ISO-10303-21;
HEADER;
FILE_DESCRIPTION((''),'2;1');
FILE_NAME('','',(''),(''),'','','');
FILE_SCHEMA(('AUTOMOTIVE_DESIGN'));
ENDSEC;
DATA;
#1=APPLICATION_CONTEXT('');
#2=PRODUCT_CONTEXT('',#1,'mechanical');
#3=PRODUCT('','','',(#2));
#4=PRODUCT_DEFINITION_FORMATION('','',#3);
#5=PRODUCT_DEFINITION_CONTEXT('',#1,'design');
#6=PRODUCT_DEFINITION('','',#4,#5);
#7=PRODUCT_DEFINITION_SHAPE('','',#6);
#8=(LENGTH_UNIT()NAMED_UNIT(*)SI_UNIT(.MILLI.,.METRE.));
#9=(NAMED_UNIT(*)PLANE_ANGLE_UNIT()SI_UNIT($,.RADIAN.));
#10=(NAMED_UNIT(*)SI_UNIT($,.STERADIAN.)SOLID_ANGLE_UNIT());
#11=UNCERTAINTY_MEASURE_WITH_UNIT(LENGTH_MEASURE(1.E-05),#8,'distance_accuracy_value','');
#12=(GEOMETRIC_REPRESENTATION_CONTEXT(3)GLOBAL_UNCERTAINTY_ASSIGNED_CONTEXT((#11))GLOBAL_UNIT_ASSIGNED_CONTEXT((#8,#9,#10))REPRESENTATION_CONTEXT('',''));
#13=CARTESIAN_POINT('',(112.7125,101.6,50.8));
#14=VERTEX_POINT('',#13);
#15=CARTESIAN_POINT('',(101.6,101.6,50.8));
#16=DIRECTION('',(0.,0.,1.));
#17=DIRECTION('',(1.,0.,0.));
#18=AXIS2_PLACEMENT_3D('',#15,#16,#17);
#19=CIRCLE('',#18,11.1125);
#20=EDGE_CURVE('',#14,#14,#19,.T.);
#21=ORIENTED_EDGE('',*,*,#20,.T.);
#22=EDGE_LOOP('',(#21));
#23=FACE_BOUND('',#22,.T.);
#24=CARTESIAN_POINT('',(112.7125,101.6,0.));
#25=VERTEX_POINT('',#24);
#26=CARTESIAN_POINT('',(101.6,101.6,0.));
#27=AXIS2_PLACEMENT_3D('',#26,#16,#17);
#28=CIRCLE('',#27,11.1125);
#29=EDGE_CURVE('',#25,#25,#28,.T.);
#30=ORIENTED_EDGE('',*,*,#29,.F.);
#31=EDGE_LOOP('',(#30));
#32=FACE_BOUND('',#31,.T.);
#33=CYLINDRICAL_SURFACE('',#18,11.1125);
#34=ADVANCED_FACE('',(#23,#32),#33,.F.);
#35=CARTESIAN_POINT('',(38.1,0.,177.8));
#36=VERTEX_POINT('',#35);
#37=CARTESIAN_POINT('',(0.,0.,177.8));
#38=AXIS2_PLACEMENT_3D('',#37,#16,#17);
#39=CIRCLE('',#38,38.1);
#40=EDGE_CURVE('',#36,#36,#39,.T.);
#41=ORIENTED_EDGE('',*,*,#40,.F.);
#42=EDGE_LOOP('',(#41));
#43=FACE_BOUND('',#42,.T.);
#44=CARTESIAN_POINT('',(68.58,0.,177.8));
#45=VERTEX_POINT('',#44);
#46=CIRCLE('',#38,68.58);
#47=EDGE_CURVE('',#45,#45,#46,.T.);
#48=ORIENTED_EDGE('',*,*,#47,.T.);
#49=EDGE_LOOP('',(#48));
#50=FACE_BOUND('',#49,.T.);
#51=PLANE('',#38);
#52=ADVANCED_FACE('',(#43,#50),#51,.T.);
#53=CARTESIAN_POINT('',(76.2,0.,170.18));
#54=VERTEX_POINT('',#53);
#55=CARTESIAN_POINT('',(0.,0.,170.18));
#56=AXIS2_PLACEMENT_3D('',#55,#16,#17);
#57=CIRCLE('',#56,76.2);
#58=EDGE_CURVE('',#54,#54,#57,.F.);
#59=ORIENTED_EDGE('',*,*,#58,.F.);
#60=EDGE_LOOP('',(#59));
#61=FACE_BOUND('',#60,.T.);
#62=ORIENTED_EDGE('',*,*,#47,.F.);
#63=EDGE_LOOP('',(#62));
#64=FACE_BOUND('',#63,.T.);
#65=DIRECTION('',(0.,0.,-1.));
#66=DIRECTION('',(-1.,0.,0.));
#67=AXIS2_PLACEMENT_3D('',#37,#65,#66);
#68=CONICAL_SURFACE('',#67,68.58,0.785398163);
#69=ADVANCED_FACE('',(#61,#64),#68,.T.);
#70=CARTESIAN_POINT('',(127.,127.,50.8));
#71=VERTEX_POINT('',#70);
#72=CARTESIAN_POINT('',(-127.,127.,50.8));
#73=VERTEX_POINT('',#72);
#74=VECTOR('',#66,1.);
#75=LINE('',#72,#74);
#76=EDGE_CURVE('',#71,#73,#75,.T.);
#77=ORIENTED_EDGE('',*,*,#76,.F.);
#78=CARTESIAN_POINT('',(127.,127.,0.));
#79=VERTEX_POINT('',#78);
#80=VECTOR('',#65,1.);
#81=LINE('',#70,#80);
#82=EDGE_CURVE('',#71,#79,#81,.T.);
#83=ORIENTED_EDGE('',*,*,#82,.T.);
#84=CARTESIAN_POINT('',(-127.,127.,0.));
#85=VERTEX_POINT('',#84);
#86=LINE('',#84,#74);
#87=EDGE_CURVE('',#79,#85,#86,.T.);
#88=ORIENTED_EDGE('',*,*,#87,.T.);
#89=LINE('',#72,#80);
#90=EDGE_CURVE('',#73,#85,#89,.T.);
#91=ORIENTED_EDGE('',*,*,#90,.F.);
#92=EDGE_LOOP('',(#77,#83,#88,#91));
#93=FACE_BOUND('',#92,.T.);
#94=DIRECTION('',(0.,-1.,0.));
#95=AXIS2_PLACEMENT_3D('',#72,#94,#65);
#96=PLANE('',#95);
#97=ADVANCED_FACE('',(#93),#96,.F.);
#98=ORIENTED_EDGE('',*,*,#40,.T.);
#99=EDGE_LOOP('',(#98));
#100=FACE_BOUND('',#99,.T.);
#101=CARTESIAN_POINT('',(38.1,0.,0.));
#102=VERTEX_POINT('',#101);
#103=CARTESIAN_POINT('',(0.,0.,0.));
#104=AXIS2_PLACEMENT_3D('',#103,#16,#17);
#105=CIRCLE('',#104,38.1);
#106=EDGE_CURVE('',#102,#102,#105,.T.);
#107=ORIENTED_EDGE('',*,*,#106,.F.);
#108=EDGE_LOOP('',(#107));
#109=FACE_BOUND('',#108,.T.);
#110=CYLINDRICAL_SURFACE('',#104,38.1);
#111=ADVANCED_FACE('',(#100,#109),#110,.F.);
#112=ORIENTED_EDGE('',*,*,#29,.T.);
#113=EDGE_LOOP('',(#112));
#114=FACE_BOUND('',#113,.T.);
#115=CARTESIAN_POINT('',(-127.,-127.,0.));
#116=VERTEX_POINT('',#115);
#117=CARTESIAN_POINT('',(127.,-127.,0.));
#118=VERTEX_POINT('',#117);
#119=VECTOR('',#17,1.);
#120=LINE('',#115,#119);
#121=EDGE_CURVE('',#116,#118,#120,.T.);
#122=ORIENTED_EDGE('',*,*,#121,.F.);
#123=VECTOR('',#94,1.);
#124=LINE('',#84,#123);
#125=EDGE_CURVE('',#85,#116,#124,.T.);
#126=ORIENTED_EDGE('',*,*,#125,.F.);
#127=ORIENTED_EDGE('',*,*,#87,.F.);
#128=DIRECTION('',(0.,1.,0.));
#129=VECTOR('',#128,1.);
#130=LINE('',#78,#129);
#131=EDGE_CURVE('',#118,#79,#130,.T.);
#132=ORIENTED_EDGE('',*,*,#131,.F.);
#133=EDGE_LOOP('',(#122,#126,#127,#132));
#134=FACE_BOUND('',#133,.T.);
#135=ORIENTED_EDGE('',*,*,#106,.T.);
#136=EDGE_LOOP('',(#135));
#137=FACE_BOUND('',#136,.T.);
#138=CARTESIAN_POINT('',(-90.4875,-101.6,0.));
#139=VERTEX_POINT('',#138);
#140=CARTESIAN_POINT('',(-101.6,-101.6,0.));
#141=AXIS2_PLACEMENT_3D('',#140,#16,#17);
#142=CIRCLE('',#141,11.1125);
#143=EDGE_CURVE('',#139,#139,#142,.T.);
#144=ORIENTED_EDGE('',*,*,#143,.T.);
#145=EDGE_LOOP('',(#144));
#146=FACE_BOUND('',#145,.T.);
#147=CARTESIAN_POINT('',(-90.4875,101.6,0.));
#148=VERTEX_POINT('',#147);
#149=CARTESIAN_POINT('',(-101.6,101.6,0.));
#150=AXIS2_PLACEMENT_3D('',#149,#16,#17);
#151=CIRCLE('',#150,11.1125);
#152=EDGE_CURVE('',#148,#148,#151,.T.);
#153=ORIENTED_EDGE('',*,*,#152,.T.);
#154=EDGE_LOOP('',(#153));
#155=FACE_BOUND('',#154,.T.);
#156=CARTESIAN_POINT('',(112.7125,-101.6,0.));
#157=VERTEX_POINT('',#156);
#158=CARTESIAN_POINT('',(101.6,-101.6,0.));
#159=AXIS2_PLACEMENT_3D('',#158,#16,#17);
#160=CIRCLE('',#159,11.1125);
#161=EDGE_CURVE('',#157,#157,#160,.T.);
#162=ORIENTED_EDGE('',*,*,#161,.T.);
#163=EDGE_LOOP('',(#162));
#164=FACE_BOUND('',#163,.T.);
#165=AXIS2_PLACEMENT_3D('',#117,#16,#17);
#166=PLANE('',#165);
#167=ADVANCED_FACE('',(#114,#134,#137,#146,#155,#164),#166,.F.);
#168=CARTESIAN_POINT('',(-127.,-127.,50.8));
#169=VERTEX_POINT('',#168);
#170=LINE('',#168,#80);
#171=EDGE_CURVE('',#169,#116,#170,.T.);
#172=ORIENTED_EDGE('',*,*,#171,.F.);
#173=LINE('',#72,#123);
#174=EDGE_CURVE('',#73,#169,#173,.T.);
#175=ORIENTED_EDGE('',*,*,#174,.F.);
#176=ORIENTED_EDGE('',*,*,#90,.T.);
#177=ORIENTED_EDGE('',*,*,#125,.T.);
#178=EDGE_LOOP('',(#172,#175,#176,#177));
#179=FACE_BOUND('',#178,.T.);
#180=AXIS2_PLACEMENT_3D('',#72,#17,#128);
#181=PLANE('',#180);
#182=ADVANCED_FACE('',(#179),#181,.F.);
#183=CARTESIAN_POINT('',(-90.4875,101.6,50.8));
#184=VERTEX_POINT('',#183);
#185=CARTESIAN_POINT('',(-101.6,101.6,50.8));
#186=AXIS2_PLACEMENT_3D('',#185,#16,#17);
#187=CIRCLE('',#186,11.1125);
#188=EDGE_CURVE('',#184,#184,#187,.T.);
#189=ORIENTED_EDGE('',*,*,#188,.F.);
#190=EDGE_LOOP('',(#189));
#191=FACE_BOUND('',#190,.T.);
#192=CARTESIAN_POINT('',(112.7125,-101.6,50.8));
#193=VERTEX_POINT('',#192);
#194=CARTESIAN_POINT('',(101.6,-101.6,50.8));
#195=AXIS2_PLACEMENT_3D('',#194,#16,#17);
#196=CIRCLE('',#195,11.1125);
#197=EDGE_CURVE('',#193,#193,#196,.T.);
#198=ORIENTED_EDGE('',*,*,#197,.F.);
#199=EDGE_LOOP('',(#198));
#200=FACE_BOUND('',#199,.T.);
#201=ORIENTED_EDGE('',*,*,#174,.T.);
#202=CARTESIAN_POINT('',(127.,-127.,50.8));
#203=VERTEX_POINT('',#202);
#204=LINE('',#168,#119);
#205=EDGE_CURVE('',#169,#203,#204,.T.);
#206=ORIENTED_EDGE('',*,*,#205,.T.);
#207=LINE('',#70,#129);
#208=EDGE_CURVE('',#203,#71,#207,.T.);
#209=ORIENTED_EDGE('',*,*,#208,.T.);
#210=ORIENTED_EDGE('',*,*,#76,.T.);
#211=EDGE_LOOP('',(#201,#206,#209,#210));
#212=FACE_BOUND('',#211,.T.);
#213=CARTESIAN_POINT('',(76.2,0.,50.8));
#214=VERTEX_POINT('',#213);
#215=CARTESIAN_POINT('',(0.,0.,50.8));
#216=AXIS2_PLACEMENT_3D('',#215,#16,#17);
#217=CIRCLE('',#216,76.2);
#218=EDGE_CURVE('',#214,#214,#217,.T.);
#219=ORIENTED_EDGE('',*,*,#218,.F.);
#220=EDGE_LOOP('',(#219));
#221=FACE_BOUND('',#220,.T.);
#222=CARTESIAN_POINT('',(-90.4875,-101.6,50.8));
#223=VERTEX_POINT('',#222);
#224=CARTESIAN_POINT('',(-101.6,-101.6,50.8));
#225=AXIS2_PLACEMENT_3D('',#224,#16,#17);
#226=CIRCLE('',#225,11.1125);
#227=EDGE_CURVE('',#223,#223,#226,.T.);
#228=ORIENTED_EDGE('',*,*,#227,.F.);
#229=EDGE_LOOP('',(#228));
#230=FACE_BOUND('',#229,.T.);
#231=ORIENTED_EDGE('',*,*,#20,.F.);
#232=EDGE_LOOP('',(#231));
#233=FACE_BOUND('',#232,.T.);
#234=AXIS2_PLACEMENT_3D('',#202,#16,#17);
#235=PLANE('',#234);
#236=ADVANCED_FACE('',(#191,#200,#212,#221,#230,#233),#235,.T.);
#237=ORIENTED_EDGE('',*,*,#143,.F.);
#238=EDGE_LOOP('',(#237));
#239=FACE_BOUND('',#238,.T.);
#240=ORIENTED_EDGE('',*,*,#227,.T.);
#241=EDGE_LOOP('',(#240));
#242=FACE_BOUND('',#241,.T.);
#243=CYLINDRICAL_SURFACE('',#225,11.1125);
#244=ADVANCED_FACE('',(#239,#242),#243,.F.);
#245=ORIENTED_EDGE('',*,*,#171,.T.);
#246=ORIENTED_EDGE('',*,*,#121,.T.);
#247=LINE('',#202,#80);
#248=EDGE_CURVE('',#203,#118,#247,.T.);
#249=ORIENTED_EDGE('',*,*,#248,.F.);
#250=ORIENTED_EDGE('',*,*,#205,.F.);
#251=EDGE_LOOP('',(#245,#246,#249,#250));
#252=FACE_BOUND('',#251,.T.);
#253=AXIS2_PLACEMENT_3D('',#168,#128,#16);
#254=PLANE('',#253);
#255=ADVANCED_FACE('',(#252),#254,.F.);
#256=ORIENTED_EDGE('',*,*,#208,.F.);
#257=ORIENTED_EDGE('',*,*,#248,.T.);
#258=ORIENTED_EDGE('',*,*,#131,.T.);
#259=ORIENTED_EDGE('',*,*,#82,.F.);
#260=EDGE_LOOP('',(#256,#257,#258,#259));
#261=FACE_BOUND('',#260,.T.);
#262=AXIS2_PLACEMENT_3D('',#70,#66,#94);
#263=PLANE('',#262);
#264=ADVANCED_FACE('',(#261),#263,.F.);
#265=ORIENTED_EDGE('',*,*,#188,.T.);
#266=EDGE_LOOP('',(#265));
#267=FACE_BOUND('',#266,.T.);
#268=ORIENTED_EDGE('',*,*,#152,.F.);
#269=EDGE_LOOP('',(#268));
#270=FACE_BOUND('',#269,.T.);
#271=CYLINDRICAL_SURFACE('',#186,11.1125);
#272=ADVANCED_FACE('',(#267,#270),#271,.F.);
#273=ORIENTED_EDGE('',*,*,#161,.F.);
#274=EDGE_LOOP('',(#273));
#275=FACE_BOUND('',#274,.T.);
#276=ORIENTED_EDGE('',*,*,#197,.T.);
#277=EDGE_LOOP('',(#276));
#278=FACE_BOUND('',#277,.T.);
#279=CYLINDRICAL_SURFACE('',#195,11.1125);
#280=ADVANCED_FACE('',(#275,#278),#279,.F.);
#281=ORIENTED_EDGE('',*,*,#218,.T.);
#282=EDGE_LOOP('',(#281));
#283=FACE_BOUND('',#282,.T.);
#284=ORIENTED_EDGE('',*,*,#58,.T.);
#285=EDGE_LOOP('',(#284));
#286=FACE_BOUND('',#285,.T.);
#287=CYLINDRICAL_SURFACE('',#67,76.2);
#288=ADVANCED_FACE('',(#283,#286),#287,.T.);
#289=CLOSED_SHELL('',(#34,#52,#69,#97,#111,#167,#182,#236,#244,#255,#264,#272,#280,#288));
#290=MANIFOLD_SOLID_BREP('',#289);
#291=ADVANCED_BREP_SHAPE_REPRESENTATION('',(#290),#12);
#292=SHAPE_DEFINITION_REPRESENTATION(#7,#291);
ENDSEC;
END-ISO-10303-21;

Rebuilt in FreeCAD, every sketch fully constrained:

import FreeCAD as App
import Part
import Sketcher
Q = App.Units.Quantity


def edges_at(feature, points):
    """Names of the edges that pass closest to the given points."""
    edges = feature.Shape.Edges
    near = lambda p: min(range(len(edges)), key=lambda i: edges[i].distToShape(Part.Vertex(*p))[0])
    return sorted({f"Edge{near(p) + 1}" for p in points})

doc = App.newDocument("Part")
params = doc.addObject("Spreadsheet::Sheet", "Params")
for row, (alias, value) in enumerate([
    ("sketch1_width", "10 in"),
    ("pad1_length", "2 in"),
    ("sketch2_diameter", "6 in"),
    ("pad2_length", "5 in"),
    ("chamfer_size", "0.3 in"),
    ("sketch3_diameter", "3 in"),
    ("sketch4_diameter", "0.875 in"),
    ("hole_diameter", "0.875 in"),
], start=1):
    params.set(f"A{row}", alias)
    params.set(f"B{row}", "=" + value)
    params.setAlias(f"B{row}", alias)

body = doc.addObject("PartDesign::Body", "Body")

# Sketch on XY plane
sketch1 = body.newObject("Sketcher::SketchObject", "Sketch")
sketch1.AttachmentSupport = (doc.getObject("XY_Plane"), [""])
sketch1.MapMode = "FlatFace"
sketch1.addGeometry([
    Part.LineSegment(App.Vector(-127, 127, 0), App.Vector(-127, -127, 0)),
    Part.LineSegment(App.Vector(-127, -127, 0), App.Vector(127, -127, 0)),
    Part.LineSegment(App.Vector(127, -127, 0), App.Vector(127, 127, 0)),
    Part.LineSegment(App.Vector(127, 127, 0), App.Vector(-127, 127, 0)),
], False)
sketch1.addConstraint([
    Sketcher.Constraint("Coincident", 0, 2, 1, 1),
    Sketcher.Constraint("Coincident", 1, 2, 2, 1),
    Sketcher.Constraint("Coincident", 2, 2, 3, 1),
    Sketcher.Constraint("Coincident", 3, 2, 0, 1),
    Sketcher.Constraint("Vertical", 0),
    Sketcher.Constraint("Horizontal", 1),
    Sketcher.Constraint("Vertical", 2),
    Sketcher.Constraint("Horizontal", 3),
    Sketcher.Constraint("Symmetric", 0, 2, 2, 2, -1, 1),
    Sketcher.Constraint("Equal", 3, 0),
    Sketcher.Constraint("DistanceX", 1, 1, 1, 2, Q("10 in")),
])
sketch1.setExpression("Constraints[10]", "Params.sketch1_width")
pad1 = body.newObject("PartDesign::Pad", "Pad")
pad1.Profile = sketch1
pad1.setExpression("Length", "Params.pad1_length")

# Sketch on XY plane
sketch2 = body.newObject("Sketcher::SketchObject", "Sketch001")
sketch2.AttachmentSupport = (doc.getObject("XY_Plane"), [""])
sketch2.MapMode = "FlatFace"
sketch2.AttachmentOffset = App.Placement(App.Vector(0, 0, 2 * 25.4), App.Rotation())
sketch2.addGeometry(Part.Circle(App.Vector(0, 0, 0), App.Vector(0, 0, 1), 76.2), False)
sketch2.addConstraint([
    Sketcher.Constraint("Coincident", 0, 3, -1, 1),
    Sketcher.Constraint("Diameter", 0, Q("6 in")),
])
sketch2.setExpression("Constraints[1]", "Params.sketch2_diameter")
pad2 = body.newObject("PartDesign::Pad", "Pad001")
pad2.Profile = sketch2
pad2.setExpression("Length", "Params.pad2_length")
doc.recompute()

chamfer = body.newObject("PartDesign::Chamfer", "Chamfer")
chamfer.Base = (pad2, edges_at(pad2, [(-76.2, 0, 177.8)]))
chamfer.setExpression("Size", "Params.chamfer_size")

# Sketch on XY plane
sketch3 = body.newObject("Sketcher::SketchObject", "Sketch002")
sketch3.AttachmentSupport = (doc.getObject("XY_Plane"), [""])
sketch3.MapMode = "FlatFace"
sketch3.AttachmentOffset = App.Placement(App.Vector(0, 0, 7 * 25.4), App.Rotation())
sketch3.addGeometry(Part.Circle(App.Vector(0, 0, 0), App.Vector(0, 0, 1), 38.1), False)
sketch3.addConstraint([
    Sketcher.Constraint("Coincident", 0, 3, -1, 1),
    Sketcher.Constraint("Diameter", 0, Q("3 in")),
])
sketch3.setExpression("Constraints[1]", "Params.sketch3_diameter")
pocket1 = body.newObject("PartDesign::Pocket", "Pocket")
pocket1.Profile = sketch3
pocket1.Type = "ThroughAll"

# Sketch on XY plane
sketch4 = body.newObject("Sketcher::SketchObject", "Sketch003")
sketch4.AttachmentSupport = (doc.getObject("XY_Plane"), [""])
sketch4.MapMode = "FlatFace"
sketch4.AttachmentOffset = App.Placement(App.Vector(0, 0, 2 * 25.4), App.Rotation())
sketch4.addGeometry([
    Part.Circle(App.Vector(-101.6, 101.6, 0), App.Vector(0, 0, 1), 11.1125),
    Part.Circle(App.Vector(101.6, 101.6, 0), App.Vector(0, 0, 1), 11.1125),
    Part.Circle(App.Vector(101.6, -101.6, 0), App.Vector(0, 0, 1), 11.1125),
    Part.Circle(App.Vector(-101.6, -101.6, 0), App.Vector(0, 0, 1), 11.1125),
], False)
sketch4.addConstraint([
    Sketcher.Constraint("Equal", 0, 1),
    Sketcher.Constraint("Equal", 1, 2),
    Sketcher.Constraint("Equal", 2, 3),
    Sketcher.Constraint("Symmetric", 0, 3, 2, 3, -1, 1),
    Sketcher.Constraint("Symmetric", 1, 3, 3, 3, -1, 1),
    Sketcher.Constraint("Symmetric", 0, 3, 1, 3, -2),
    Sketcher.Constraint("Diameter", 0, Q("0.875 in")),
    Sketcher.Constraint("DistanceX", 0, 3, -1, 1, Q("4 in")),
    Sketcher.Constraint("DistanceY", -1, 1, 0, 3, Q("4 in")),
])
sketch4.setExpression("Constraints[6]", "Params.sketch4_diameter")
doc.recompute()
hole = body.newObject("PartDesign::Hole", "Hole")
hole.Profile = sketch4
hole.ThreadType = "None"
hole.setExpression("Diameter", "Params.hole_diameter")
hole.DepthType = "ThroughAll"

doc.recompute()
